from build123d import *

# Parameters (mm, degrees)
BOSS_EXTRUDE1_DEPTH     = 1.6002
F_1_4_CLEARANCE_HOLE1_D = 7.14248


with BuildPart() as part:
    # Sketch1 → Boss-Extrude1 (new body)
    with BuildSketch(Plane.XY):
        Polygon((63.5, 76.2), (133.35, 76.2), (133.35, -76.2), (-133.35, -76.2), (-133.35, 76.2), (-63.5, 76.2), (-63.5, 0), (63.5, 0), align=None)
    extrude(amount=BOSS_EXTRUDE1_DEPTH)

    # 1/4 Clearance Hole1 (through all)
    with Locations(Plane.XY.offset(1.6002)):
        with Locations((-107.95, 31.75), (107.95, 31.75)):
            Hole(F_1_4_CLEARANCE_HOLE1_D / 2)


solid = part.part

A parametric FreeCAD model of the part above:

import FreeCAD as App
import Part
import Sketcher
Q = App.Units.Quantity


def add_polygon(sketch, points):
    """Adds a closed chain of lines whose ends are joined by coincident constraints."""
    first, n = sketch.GeometryCount, len(points)
    for a, b in zip(points, points[1:] + points[:1]):
        sketch.addGeometry(Part.LineSegment(App.Vector(*a, 0), App.Vector(*b, 0)), False)
    for i in range(n):
        sketch.addConstraint(Sketcher.Constraint("Coincident", first + i, 2, first + (i + 1) % n, 1))

doc = App.newDocument("Part")
params = doc.addObject("Spreadsheet::Sheet", "Params")
for row, (alias, value) in enumerate([
    ("sketch1_width", "5 in"),
    ("sketch1_height", "3 in"),
    ("sketch1_width2", "10.5 in"),
    ("pad1_length", "0.063 in"),
    ("hole_diameter", "0.2812 in"),
], start=1):
    params.set(f"A{row}", alias)
    params.set(f"B{row}", "=" + value)
    params.setAlias(f"B{row}", alias)

body = doc.addObject("PartDesign::Body", "Body")

sketch1 = doc.addObject("Sketcher::SketchObject", "Sketch")
body.addObject(sketch1)
sketch1.AttachmentSupport = (doc.XY_Plane, [""])
sketch1.MapMode = "FlatFace"
add_polygon(sketch1, [(133, 76), (64, 76), (64, 0), (-64, 0), (-64, 76), (-133, 76), (-133, -76), (133, -76)])
sketch1.addConstraint([
    Sketcher.Constraint("Horizontal", 0),
    Sketcher.Constraint("Vertical", 1),
    Sketcher.Constraint("Horizontal", 2),
    Sketcher.Constraint("Vertical", 3),
    Sketcher.Constraint("Horizontal", 4),
    Sketcher.Constraint("Vertical", 5),
    Sketcher.Constraint("Horizontal", 6),
    Sketcher.Constraint("Vertical", 7),
    Sketcher.Constraint("Symmetric", 1, 2, 2, 2, -1, 1),
    Sketcher.Constraint("Symmetric", 4, 2, 6, 2, -1, 1),
    Sketcher.Constraint("Horizontal", 0, 2, 3, 2),
    Sketcher.Constraint("DistanceX", 2, 2, 2, 1, Q("5 in")),
    Sketcher.Constraint("DistanceY", 1, 2, 1, 1, Q("3 in")),
    Sketcher.Constraint("DistanceX", 6, 1, 6, 2, Q("10.5 in")),
])
sketch1.setExpression("Constraints[19]", "Params.sketch1_width")
sketch1.setExpression("Constraints[20]", "Params.sketch1_height")
sketch1.setExpression("Constraints[21]", "Params.sketch1_width2")
pad1 = doc.addObject("PartDesign::Pad", "Pad")
body.addObject(pad1)
pad1.Profile = sketch1
pad1.setExpression("Length", "Params.pad1_length")

sketch2 = doc.addObject("Sketcher::SketchObject", "Sketch001")
body.addObject(sketch2)
sketch2.AttachmentSupport = (doc.XY_Plane, [""])
sketch2.MapMode = "FlatFace"
sketch2.AttachmentOffset = App.Placement(App.Vector(0, 0, 0.063 * 25.4), App.Rotation())
sketch2.addGeometry([
    Part.Circle(App.Vector(-108, 31.8, 0), App.Vector(0, 0, 1), 3.6),
    Part.Circle(App.Vector(108, 31.8, 0), App.Vector(0, 0, 1), 3.6),
], False)
sketch2.addConstraint([
    Sketcher.Constraint("Equal", 0, 1),
    Sketcher.Constraint("Symmetric", 0, 3, 1, 3, -2),
    Sketcher.Constraint("Diameter", 0, Q("0.2812 in")),
    Sketcher.Constraint("DistanceX", 0, 3, 1, 3, Q("8.5 in")),
    Sketcher.Constraint("DistanceY", -1, 1, 0, 3, Q("1.25 in")),
])
doc.recompute()
hole = doc.addObject("PartDesign::Hole", "Hole")
body.addObject(hole)
hole.Profile = sketch2
hole.ThreadType = "None"
hole.setExpression("Diameter", "Params.hole_diameter")
hole.DepthType = "ThroughAll"

doc.recompute()
